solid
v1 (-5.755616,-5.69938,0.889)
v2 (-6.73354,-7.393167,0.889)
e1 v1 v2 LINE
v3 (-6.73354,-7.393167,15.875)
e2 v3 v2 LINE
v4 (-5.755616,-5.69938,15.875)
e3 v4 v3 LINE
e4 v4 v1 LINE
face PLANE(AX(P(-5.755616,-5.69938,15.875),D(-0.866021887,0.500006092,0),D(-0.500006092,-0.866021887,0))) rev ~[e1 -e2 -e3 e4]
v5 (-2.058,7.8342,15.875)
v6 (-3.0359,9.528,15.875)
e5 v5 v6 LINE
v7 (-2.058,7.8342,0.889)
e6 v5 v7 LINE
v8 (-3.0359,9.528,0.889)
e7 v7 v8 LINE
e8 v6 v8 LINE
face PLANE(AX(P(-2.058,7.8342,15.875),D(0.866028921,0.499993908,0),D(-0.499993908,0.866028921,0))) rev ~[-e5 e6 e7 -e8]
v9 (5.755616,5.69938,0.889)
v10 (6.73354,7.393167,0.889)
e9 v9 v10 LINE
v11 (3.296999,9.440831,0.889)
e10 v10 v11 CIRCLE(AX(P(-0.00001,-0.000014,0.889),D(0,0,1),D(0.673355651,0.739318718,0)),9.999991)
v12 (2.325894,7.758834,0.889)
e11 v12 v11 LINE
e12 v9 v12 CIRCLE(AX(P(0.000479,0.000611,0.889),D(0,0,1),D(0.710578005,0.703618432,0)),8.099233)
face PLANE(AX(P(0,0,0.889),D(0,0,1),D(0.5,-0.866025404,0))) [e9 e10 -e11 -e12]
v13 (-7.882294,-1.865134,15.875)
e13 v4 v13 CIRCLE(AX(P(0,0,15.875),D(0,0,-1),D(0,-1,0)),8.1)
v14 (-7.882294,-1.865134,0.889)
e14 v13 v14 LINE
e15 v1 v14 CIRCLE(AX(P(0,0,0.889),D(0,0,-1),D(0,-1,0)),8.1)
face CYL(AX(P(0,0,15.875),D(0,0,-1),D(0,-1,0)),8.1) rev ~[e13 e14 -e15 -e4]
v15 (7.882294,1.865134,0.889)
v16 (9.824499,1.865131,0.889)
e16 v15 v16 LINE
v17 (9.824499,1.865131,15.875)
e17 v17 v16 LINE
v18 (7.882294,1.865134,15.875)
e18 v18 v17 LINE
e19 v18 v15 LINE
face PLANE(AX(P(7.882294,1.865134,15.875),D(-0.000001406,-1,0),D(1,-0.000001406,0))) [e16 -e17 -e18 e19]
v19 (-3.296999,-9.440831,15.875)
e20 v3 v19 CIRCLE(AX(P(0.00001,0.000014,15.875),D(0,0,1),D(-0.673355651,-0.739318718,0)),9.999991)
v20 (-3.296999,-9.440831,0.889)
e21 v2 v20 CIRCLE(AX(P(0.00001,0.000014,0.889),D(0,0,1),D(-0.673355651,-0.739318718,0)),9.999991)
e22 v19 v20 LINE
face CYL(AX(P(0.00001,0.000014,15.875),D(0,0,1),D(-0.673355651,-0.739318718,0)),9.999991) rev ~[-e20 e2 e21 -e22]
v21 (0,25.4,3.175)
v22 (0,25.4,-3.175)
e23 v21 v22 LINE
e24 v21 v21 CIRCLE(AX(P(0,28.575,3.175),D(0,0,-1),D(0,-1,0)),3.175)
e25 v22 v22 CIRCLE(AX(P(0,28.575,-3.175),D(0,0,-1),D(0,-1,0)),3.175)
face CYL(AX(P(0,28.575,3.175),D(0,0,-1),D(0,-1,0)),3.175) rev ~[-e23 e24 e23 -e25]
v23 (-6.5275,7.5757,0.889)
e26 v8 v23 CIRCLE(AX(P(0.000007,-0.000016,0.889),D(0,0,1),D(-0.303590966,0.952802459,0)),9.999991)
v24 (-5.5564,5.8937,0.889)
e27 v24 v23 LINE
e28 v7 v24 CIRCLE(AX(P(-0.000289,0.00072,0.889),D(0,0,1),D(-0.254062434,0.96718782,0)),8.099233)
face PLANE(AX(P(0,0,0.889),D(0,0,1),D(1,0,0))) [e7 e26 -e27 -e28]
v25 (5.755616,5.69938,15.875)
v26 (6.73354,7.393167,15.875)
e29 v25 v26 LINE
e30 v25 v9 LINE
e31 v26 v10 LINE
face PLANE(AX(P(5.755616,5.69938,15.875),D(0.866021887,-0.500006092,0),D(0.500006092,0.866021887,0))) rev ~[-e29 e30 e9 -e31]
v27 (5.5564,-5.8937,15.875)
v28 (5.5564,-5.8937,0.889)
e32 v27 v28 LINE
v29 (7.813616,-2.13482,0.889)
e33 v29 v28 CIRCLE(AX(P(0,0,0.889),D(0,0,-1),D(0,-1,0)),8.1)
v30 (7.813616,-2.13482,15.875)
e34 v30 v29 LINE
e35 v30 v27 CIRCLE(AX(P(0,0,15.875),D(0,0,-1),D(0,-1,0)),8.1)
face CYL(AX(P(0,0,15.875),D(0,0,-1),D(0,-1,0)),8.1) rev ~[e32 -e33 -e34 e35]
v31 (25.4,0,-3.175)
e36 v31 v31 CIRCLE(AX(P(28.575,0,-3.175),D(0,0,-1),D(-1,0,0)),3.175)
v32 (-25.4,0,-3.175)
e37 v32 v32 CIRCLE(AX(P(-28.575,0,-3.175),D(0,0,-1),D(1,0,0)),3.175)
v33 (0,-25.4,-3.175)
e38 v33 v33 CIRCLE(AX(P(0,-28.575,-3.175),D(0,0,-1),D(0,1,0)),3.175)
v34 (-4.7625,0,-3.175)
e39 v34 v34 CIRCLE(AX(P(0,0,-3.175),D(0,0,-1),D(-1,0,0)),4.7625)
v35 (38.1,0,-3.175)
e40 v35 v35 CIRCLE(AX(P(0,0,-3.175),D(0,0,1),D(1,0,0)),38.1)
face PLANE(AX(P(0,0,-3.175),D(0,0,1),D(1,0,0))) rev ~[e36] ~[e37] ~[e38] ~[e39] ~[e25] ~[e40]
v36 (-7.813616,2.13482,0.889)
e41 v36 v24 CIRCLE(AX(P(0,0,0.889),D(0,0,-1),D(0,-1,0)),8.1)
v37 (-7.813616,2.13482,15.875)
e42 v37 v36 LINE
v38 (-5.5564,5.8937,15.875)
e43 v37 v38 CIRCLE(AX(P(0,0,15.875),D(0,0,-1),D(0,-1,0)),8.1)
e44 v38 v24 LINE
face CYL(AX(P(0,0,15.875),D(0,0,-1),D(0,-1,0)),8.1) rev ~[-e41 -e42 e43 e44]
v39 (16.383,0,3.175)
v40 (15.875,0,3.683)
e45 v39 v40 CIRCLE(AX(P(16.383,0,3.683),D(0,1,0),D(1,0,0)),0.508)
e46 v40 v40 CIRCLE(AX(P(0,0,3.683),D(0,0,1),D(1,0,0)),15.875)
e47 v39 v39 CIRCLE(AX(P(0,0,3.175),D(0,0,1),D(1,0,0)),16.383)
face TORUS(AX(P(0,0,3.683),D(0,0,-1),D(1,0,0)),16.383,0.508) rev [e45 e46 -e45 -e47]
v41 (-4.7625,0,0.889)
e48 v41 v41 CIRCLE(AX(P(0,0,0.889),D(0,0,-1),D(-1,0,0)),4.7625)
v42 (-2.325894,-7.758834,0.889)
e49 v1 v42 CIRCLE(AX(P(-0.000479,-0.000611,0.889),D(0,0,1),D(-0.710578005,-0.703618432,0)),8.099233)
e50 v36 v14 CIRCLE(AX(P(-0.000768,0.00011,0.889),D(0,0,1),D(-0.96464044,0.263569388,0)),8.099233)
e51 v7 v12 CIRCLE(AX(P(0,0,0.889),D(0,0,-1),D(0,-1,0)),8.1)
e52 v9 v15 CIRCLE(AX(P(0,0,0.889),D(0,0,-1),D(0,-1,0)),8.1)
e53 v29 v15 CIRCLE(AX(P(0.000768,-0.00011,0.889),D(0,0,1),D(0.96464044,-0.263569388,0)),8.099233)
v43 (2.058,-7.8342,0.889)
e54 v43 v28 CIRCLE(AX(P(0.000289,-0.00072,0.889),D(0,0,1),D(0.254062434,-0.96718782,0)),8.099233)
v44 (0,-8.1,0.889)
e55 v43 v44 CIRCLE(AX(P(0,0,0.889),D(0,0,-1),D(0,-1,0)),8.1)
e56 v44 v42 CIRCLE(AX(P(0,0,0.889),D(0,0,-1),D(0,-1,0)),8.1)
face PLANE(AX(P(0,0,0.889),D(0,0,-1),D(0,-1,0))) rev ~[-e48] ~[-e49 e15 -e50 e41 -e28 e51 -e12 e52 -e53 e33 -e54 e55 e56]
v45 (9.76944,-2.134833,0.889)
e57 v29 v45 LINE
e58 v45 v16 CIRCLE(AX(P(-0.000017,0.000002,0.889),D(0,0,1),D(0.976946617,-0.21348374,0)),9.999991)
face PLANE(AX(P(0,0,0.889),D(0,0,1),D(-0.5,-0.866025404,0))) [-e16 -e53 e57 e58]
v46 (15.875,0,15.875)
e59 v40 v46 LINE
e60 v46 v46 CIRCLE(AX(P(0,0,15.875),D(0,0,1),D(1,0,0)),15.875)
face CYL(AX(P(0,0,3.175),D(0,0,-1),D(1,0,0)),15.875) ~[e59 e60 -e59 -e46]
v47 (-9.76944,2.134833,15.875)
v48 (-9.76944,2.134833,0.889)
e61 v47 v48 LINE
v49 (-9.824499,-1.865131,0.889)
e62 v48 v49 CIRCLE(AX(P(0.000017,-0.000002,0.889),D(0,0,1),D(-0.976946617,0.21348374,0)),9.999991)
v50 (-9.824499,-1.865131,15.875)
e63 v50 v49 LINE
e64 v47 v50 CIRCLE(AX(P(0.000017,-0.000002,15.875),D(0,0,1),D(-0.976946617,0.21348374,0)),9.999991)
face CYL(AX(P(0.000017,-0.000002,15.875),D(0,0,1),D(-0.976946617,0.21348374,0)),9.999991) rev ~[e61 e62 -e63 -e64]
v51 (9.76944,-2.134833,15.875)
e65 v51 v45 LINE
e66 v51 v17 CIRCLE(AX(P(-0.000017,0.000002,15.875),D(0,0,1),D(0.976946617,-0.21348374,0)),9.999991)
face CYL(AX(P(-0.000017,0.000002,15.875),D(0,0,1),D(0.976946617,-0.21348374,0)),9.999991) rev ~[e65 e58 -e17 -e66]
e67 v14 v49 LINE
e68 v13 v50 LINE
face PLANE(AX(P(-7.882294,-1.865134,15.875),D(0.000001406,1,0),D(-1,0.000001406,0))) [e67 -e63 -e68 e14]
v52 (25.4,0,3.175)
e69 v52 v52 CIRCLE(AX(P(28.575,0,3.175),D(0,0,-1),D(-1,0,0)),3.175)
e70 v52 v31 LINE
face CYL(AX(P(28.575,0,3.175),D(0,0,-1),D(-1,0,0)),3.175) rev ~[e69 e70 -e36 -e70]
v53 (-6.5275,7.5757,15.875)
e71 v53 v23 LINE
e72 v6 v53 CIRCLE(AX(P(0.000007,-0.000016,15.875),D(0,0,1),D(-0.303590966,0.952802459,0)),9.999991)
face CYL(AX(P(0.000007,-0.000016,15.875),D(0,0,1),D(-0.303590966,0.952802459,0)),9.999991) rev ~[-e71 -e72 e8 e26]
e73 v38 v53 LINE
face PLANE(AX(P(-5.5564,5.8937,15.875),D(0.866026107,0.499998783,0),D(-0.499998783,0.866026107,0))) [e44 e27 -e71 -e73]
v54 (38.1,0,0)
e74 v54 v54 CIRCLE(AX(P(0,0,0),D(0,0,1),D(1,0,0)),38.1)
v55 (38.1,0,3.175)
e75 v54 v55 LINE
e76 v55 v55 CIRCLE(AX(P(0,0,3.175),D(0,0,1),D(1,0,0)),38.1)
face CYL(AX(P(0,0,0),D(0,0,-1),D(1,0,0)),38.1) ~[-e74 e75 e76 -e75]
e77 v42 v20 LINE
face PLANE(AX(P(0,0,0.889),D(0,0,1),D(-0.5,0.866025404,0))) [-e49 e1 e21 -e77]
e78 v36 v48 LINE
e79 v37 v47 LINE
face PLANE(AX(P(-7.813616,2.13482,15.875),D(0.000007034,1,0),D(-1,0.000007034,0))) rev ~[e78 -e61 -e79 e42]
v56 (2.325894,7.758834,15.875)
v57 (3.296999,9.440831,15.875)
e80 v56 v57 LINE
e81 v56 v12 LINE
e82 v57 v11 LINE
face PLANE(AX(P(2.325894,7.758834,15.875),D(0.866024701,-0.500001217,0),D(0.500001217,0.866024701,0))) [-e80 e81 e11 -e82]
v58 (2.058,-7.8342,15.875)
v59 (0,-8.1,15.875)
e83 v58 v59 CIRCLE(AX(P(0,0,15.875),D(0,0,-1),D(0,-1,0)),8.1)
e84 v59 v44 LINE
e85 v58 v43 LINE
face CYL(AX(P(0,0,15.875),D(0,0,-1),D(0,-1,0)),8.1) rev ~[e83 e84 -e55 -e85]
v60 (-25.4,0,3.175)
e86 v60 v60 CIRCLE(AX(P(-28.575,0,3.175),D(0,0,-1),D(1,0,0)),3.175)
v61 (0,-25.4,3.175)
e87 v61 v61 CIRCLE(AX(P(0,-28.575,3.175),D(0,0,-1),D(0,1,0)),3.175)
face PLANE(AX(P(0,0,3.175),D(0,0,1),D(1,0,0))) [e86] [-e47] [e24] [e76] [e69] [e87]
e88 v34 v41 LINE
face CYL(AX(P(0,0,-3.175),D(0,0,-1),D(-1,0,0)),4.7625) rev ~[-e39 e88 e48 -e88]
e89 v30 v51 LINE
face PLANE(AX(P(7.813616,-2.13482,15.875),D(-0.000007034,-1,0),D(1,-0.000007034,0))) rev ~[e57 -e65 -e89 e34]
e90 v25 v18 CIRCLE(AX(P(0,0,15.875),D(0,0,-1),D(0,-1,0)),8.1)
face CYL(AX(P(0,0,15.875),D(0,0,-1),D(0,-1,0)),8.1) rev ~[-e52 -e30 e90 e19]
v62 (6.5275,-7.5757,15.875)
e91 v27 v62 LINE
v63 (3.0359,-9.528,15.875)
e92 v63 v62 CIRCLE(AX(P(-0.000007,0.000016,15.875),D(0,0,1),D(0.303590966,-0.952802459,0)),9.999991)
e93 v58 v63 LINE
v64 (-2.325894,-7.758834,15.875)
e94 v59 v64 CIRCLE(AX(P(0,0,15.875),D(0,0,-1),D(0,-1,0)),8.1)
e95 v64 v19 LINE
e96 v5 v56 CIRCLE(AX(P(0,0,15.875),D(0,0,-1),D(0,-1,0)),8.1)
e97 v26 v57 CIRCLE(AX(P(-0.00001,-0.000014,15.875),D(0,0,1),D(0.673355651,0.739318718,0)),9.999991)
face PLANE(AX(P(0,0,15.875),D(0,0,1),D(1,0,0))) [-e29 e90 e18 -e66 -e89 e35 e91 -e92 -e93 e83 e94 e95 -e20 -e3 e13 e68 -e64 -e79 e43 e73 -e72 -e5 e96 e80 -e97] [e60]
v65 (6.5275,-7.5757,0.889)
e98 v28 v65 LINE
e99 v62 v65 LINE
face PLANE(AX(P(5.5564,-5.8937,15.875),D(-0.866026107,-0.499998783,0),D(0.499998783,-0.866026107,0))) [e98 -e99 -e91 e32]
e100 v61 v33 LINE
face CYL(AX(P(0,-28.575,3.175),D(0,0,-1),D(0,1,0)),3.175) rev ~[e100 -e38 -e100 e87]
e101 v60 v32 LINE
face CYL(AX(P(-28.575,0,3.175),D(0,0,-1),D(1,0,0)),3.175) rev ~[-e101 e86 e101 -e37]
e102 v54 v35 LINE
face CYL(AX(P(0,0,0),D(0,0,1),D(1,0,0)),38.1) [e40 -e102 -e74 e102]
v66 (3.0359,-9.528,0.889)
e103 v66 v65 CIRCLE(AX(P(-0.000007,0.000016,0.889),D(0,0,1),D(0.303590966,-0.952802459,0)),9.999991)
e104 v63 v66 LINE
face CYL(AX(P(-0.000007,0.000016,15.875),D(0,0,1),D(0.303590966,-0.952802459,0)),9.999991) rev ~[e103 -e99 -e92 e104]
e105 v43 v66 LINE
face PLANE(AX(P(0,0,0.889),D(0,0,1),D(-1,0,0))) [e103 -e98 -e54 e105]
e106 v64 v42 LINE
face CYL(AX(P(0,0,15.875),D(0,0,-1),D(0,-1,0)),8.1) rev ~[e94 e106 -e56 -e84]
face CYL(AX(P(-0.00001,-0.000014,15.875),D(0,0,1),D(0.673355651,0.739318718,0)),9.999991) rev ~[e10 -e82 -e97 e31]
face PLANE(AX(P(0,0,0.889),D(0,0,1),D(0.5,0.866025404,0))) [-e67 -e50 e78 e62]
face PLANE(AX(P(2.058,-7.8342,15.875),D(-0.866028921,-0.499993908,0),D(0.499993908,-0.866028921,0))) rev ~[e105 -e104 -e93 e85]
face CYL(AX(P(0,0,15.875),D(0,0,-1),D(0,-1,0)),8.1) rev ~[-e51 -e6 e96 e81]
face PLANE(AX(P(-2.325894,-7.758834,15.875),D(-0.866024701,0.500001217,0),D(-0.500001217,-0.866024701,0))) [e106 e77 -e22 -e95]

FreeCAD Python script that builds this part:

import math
import FreeCAD as App
import Part
import Sketcher
Q = App.Units.Quantity


def edges_at(feature, points):
    """Names of the edges that pass closest to the given points."""
    edges = feature.Shape.Edges
    near = lambda p: min(range(len(edges)), key=lambda i: edges[i].distToShape(Part.Vertex(*p))[0])
    return sorted({f"Edge{near(p) + 1}" for p in points})

doc = App.newDocument("Part")
body = doc.addObject("PartDesign::Body", "Body")

# Sketch on XY plane
sketch1 = body.newObject("Sketcher::SketchObject", "Sketch")
sketch1.AttachmentSupport = (doc.getObject("XY_Plane"), [""])
sketch1.MapMode = "FlatFace"
sketch1.addGeometry(Part.Circle(App.Vector(0, 0, 0), App.Vector(0, 0, 1), 38), False)
sketch1.addConstraint([
    Sketcher.Constraint("Coincident", 0, 3, -1, 1),
    Sketcher.Constraint("Diameter", 0, Q("3 in")),
])
pad1 = body.newObject("PartDesign::Pad", "Pad")
pad1.Profile = sketch1
pad1.Length = Q("0.25 in")
pad1.Midplane = True

# Sketch on XY plane
sketch2 = body.newObject("Sketcher::SketchObject", "Sketch001")
sketch2.AttachmentSupport = (doc.getObject("XY_Plane"), [""])
sketch2.MapMode = "FlatFace"
sketch2.AttachmentOffset = App.Placement(App.Vector(0, 0, 0.125 * 25.4), App.Rotation())
sketch2.addGeometry(Part.Circle(App.Vector(0, 28.6, 0), App.Vector(0, 0, 1), 3.2), False)
sketch2.addConstraint([
    Sketcher.Constraint("PointOnObject", 0, 3, -2),
    Sketcher.Constraint("Diameter", 0, Q("0.25 in")),
    Sketcher.Constraint("DistanceY", -1, 1, 0, 3, Q("1.125 in")),
])
doc.recompute()
hole = body.newObject("PartDesign::Hole", "Hole")
hole.Profile = sketch2
hole.ThreadType = "None"
hole.Diameter = Q("0.25 in")
hole.DepthType = "ThroughAll"
doc.recompute()

polarpattern = body.newObject("PartDesign::PolarPattern", "PolarPattern")
polarpattern.Originals = [hole]
polarpattern.Axis = (doc.getObject("Z_Axis"), [""])
polarpattern.Angle = 360
polarpattern.Occurrences = 4
body.Tip = polarpattern

# Sketch on XY plane
sketch3 = body.newObject("Sketcher::SketchObject", "Sketch002")
sketch3.AttachmentSupport = (doc.getObject("XY_Plane"), [""])
sketch3.MapMode = "FlatFace"
sketch3.AttachmentOffset = App.Placement(App.Vector(0, 0, 0.125 * 25.4), App.Rotation())
sketch3.addGeometry(Part.Circle(App.Vector(0, 0, 0), App.Vector(0, 0, 1), 16), False)
sketch3.addConstraint([
    Sketcher.Constraint("Coincident", 0, 3, -1, 1),
    Sketcher.Constraint("Diameter", 0, Q("1.25 in")),
])
pad2 = body.newObject("PartDesign::Pad", "Pad001")
pad2.Profile = sketch3
pad2.Length = Q("0.5 in")

# Sketch on XY plane
sketch4 = body.newObject("Sketcher::SketchObject", "Sketch003")
sketch4.AttachmentSupport = (doc.getObject("XY_Plane"), [""])
sketch4.MapMode = "FlatFace"
sketch4.AttachmentOffset = App.Placement(App.Vector(0, 0, 0.625 * 25.4), App.Rotation())
sketch4.addGeometry(Part.Circle(App.Vector(0, 0, 0), App.Vector(0, 0, 1), 8), False)
sketch4.addConstraint([
    Sketcher.Constraint("Coincident", 0, 3, -1, 1),
    Sketcher.Constraint("Diameter", 0, Q("0.6378 in")),
])
doc.recompute()
hole2 = body.newObject("PartDesign::Hole", "Hole001")
hole2.Profile = sketch4
hole2.ThreadType = "None"
hole2.Diameter = Q("0.6377953 in")
hole2.DepthType = "Dimension"
hole2.Depth = Q("0.59 in")
hole2.DrillPoint = "Flat"

# Sketch on XY plane
sketch5 = body.newObject("Sketcher::SketchObject", "Sketch004")
sketch5.AttachmentSupport = (doc.getObject("XY_Plane"), [""])
sketch5.MapMode = "FlatFace"
sketch5.AttachmentOffset = App.Placement(App.Vector(0, 0, 0.625 * 25.4), App.Rotation())
sketch5.addGeometry([
    Part.LineSegment(App.Vector(-2.1, 7.8, 0), App.Vector(-3, 9.5, 0)),
    Part.ArcOfCircle(Part.Circle(App.Vector(0, 0, 0), App.Vector(0, 0, 1), 10), math.radians(108), math.radians(131)),
    Part.LineSegment(App.Vector(-6.5, 7.6, 0), App.Vector(-5.6, 5.9, 0)),
    Part.ArcOfCircle(Part.Circle(App.Vector(0, 0, 0), App.Vector(0, 0, 1), 8.1), math.radians(105), math.radians(133)),
], False)
sketch5.addConstraint([
    Sketcher.Constraint("Coincident", 0, 2, 1, 1),
    Sketcher.Constraint("Coincident", 1, 2, 2, 1),
    Sketcher.Constraint("Coincident", 2, 2, 3, 2),
    Sketcher.Constraint("Coincident", 3, 1, 0, 1),
    Sketcher.Constraint("Coincident", 1, 3, -1, 1),
    Sketcher.Constraint("Coincident", 3, 3, -1, 1),
    Sketcher.Constraint("Parallel", 0, 2),
    Sketcher.Constraint("Angle", 2, Q("-60 deg")),
    Sketcher.Constraint("Radius", 1, Q("0.3937 in")),
    Sketcher.Constraint("Radius", 3, Q("0.3189 in")),
    Sketcher.Constraint("Distance", 0, Q("0.077 in")),
    Sketcher.Constraint("DistanceX", 1, 2, -1, 1, Q("0.257 in")),
])
pocket1 = body.newObject("PartDesign::Pocket", "Pocket")
pocket1.Profile = sketch5
pocket1.Length = Q("0.59 in")
doc.recompute()

polarpattern2 = body.newObject("PartDesign::PolarPattern", "PolarPattern001")
polarpattern2.Originals = [pocket1]
polarpattern2.Axis = (doc.getObject("Z_Axis"), [""])
polarpattern2.Angle = 360
polarpattern2.Occurrences = 6
body.Tip = polarpattern2
doc.recompute()

fillet = body.newObject("PartDesign::Fillet", "Fillet")
fillet.Base = (polarpattern2, edges_at(polarpattern2, [(-15.875, 0, 3.175)]))
fillet.Radius = Q("0.02 in")

# Sketch on XY plane
sketch6 = body.newObject("Sketcher::SketchObject", "Sketch005")
sketch6.AttachmentSupport = (doc.getObject("XY_Plane"), [""])
sketch6.MapMode = "FlatFace"
sketch6.AttachmentOffset = App.Placement(App.Vector(0, 0, -0.125 * 25.4), App.Rotation())
sketch6.addGeometry(Part.Circle(App.Vector(0, 0, 0), App.Vector(0, 0, 1), 4.8), False)
sketch6.addConstraint([
    Sketcher.Constraint("Coincident", 0, 3, -1, 1),
    Sketcher.Constraint("Diameter", 0, Q("0.375 in")),
])
pocket2 = body.newObject("PartDesign::Pocket", "Pocket001")
pocket2.Profile = sketch6
pocket2.Length = Q("1 in")
pocket2.Reversed = True

doc.recompute()
